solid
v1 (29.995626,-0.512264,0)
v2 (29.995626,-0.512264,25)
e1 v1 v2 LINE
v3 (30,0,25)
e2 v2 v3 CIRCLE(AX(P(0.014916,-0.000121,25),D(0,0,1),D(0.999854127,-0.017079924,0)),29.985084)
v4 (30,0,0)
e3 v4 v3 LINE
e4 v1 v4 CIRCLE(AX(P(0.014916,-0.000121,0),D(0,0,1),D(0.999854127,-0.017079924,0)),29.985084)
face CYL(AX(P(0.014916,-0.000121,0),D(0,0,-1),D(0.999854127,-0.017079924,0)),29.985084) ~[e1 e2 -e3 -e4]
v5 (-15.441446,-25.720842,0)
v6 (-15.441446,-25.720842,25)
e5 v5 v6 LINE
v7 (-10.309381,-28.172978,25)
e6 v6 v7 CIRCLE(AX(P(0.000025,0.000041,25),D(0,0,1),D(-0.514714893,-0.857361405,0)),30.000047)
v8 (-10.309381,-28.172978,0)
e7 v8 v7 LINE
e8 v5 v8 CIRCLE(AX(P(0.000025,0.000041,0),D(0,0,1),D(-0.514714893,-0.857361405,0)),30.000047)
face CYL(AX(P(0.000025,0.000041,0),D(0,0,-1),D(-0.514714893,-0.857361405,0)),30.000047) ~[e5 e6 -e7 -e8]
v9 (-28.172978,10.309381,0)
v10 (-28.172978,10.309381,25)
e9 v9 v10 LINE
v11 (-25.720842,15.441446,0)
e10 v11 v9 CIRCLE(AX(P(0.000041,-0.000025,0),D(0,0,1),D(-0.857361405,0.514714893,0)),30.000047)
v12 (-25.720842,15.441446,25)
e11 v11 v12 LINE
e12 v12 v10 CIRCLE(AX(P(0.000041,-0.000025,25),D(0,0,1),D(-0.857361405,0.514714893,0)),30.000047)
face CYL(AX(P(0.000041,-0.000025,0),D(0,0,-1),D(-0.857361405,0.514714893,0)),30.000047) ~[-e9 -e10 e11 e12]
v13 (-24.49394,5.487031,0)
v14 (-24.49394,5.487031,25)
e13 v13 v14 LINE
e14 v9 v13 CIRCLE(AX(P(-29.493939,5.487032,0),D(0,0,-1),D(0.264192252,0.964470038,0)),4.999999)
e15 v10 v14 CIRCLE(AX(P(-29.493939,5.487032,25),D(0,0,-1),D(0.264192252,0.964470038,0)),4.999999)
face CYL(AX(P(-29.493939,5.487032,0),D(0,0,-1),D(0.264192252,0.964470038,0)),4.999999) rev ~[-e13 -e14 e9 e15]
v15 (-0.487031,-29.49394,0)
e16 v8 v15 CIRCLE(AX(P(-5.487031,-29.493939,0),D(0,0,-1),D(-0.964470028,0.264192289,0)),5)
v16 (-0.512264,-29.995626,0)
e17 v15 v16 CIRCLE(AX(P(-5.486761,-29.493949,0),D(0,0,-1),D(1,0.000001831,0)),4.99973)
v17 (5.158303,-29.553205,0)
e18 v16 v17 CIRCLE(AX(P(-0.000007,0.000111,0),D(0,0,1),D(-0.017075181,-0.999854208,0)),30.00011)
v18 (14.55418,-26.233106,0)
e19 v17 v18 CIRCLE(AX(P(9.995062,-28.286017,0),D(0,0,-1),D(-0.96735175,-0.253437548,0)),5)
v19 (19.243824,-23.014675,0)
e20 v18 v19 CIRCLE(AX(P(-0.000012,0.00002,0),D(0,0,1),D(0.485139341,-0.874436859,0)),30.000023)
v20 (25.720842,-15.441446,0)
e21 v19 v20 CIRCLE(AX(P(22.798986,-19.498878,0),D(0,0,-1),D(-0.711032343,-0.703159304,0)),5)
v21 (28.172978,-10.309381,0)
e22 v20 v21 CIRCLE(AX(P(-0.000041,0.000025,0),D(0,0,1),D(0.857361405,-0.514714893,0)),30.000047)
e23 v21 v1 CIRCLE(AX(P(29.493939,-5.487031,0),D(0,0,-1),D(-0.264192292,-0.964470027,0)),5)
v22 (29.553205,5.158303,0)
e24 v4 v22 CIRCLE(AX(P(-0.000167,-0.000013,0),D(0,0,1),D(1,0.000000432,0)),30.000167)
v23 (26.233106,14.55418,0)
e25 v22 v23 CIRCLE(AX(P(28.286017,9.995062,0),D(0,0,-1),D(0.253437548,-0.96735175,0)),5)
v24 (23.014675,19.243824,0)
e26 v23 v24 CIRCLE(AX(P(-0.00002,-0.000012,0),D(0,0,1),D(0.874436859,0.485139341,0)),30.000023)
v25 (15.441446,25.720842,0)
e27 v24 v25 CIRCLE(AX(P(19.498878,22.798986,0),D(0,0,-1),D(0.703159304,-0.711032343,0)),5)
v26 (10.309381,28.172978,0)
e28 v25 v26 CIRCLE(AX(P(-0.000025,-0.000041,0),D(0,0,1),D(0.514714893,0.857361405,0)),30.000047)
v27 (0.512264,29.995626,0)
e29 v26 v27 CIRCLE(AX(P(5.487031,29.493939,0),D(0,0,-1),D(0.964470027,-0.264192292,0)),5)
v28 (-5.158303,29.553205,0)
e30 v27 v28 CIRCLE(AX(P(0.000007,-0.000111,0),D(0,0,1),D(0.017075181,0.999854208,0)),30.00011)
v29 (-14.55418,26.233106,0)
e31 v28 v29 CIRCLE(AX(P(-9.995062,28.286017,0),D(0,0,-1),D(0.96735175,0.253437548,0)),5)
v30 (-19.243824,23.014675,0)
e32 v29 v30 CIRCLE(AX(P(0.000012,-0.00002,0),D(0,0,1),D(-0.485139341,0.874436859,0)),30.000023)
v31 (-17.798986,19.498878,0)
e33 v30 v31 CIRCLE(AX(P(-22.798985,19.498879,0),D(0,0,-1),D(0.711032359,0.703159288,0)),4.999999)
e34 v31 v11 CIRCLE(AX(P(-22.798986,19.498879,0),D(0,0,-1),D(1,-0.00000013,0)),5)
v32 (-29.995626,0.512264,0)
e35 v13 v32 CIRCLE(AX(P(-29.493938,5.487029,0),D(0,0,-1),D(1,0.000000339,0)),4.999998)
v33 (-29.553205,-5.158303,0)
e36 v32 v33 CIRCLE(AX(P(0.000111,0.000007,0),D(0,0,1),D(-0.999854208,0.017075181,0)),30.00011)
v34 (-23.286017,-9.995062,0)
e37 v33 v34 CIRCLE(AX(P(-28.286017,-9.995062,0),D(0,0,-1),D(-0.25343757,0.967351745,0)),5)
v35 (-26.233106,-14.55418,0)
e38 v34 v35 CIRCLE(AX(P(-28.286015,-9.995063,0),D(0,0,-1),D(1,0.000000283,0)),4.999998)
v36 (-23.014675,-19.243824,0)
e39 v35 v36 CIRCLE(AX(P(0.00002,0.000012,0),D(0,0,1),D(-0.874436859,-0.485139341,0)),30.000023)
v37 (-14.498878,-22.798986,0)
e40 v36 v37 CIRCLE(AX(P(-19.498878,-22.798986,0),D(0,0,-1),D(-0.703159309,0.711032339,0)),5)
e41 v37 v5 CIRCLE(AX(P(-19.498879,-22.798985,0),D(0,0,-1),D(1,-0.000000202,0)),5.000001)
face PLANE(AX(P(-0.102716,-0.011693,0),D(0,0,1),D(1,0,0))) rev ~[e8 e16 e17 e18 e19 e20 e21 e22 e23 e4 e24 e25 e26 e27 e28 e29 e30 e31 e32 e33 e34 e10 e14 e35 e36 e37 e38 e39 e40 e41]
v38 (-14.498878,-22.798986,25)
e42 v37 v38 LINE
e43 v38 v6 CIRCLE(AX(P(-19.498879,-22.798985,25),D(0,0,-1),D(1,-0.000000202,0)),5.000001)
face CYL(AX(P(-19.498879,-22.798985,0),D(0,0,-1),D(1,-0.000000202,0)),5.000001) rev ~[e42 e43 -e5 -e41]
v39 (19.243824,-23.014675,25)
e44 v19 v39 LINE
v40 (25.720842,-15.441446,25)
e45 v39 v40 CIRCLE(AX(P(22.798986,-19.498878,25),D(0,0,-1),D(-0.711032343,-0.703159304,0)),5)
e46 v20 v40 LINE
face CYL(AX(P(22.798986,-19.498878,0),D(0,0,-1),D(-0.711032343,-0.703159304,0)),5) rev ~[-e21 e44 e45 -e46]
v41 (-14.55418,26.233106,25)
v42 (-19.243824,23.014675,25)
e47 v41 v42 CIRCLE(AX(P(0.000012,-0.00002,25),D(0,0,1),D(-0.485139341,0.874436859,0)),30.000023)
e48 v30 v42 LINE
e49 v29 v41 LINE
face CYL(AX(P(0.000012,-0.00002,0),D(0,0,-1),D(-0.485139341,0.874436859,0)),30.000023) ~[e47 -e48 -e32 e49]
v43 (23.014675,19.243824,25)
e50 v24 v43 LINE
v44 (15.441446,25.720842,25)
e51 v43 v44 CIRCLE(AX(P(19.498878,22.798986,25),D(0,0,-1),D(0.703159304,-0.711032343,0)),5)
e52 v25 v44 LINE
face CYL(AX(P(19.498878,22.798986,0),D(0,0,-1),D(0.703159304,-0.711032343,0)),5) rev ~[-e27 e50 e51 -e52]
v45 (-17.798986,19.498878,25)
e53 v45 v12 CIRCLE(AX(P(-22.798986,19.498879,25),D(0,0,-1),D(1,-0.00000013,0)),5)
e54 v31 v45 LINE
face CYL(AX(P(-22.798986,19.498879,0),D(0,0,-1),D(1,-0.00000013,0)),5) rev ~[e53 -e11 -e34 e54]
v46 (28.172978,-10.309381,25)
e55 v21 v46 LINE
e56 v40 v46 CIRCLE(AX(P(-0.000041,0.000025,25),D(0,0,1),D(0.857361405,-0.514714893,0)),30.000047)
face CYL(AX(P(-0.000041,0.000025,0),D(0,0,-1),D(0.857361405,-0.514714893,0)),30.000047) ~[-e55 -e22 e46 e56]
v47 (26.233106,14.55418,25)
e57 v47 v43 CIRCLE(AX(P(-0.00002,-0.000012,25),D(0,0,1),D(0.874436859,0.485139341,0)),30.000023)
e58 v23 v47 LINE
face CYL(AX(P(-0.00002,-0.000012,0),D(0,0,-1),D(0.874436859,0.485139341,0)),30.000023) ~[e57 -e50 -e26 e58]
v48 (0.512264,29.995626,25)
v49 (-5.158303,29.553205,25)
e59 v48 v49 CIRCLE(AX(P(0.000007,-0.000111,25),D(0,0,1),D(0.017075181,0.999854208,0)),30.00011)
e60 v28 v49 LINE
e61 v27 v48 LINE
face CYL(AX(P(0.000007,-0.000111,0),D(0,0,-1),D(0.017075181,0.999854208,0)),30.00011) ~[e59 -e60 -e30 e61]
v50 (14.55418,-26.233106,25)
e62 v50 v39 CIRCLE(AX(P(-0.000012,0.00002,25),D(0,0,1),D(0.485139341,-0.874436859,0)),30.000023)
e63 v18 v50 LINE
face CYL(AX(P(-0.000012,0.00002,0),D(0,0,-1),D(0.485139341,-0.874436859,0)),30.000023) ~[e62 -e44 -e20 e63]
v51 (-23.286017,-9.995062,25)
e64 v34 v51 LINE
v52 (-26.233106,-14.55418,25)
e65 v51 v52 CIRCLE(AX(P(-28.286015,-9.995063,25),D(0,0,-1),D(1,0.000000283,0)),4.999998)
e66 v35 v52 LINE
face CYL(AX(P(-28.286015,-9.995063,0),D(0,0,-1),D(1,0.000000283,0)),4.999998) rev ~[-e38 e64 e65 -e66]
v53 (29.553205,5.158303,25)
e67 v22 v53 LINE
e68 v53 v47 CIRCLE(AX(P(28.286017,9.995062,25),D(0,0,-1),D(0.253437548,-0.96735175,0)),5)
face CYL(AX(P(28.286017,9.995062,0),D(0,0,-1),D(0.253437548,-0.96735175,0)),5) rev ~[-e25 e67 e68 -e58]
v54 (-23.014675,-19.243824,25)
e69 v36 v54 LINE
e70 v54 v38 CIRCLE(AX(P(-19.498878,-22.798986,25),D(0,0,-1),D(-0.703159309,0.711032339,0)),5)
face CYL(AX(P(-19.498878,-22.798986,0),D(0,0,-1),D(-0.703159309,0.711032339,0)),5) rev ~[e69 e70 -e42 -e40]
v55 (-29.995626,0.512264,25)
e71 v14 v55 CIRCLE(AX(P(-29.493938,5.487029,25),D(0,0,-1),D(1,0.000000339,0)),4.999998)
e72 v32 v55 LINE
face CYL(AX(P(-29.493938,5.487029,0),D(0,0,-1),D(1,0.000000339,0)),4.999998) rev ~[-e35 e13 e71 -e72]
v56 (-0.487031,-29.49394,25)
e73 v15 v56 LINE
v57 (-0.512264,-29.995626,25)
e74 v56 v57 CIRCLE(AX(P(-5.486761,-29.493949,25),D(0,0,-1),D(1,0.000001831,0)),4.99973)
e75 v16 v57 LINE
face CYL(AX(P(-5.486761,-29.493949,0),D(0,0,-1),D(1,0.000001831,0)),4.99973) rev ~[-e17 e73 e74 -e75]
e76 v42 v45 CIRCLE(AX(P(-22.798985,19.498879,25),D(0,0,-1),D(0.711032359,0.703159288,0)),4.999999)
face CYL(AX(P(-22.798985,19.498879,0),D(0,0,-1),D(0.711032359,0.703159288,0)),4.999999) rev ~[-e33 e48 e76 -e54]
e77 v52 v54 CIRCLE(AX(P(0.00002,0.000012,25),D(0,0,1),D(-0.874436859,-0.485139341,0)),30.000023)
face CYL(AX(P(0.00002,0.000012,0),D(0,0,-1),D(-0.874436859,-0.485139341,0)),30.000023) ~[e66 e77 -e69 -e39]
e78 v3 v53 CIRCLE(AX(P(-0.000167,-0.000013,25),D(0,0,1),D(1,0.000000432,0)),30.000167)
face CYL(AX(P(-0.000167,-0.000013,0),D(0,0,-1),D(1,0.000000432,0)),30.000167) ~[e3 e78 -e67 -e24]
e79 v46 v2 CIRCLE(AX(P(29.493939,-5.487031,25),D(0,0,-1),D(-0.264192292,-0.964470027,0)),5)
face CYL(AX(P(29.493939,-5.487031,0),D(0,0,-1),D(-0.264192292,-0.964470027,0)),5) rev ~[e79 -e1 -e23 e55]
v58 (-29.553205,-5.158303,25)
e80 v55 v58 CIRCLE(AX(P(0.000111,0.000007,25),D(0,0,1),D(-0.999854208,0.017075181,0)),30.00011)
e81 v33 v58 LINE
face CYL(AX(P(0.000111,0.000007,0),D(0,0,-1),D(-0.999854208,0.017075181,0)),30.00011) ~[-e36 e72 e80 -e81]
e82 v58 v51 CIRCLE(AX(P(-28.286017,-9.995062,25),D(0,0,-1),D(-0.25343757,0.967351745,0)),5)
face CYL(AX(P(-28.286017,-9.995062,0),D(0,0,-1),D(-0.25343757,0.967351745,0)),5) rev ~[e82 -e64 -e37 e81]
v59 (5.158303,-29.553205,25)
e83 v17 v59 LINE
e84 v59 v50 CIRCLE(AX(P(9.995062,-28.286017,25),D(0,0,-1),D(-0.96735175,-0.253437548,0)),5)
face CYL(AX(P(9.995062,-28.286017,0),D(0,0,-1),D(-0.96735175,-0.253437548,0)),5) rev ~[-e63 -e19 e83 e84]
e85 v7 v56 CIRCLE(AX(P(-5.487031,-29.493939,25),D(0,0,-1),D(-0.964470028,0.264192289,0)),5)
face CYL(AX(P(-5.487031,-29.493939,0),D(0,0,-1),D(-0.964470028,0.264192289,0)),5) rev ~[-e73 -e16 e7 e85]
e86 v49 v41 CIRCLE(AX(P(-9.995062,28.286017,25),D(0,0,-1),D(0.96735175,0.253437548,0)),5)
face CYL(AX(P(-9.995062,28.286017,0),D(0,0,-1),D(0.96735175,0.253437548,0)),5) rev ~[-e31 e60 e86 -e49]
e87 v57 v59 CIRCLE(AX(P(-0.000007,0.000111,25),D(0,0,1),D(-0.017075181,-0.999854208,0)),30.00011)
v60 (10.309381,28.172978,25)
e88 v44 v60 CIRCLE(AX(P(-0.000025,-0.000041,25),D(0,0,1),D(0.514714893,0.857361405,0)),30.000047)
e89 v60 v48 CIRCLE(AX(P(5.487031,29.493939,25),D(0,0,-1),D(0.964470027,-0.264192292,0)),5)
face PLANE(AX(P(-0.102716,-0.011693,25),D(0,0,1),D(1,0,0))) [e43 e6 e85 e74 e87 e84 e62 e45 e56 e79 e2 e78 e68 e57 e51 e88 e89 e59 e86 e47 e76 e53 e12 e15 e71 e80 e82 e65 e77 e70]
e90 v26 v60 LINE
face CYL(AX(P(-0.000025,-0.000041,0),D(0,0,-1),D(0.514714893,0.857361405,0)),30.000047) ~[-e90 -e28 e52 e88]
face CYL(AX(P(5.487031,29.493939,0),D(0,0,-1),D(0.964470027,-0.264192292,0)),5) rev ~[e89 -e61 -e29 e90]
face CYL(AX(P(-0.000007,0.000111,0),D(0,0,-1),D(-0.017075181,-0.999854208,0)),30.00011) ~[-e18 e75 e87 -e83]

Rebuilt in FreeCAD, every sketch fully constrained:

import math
import FreeCAD as App
import Part
import Sketcher

V = App.Vector

doc = App.newDocument("Part")
params = doc.addObject("Spreadsheet::Sheet", "Params")
for row, (alias, value) in enumerate([
    ("sketch1_radius", "5 mm"),
    ("pad1_length", "25 mm"),
], start=1):
    params.set(f"A{row}", alias)
    params.set(f"B{row}", "=" + value)
    params.setAlias(f"B{row}", alias)

body = doc.addObject("PartDesign::Body", "Body")

# Sketch on XY plane
sketch1 = body.newObject("Sketcher::SketchObject", "Sketch")
sketch1.AttachmentSupport = (doc.getObject("XY_Plane"), [""])
sketch1.MapMode = "FlatFace"
sketch1.addGeometry(Part.ArcOfCircle(Part.Circle(V(0, 0, 0), V(0, 0, 1), 30), math.radians(-0.98), math.radians(0)), False)
sketch1.addGeometry(Part.ArcOfCircle(Part.Circle(V(0, 0, 0), V(0, 0, 1), 30), math.radians(0), math.radians(9.9)), False)
sketch1.addGeometry(Part.ArcOfCircle(Part.Circle(V(28.3, 10, 0), V(0, 0, 1), 5), math.radians(114), math.radians(285)), False)
sketch1.addGeometry(Part.ArcOfCircle(Part.Circle(V(0, 0, 0), V(0, 0, 1), 30), math.radians(29.02), math.radians(39.9)), False)
sketch1.addGeometry(Part.ArcOfCircle(Part.Circle(V(19.5, 22.8, 0), V(0, 0, 1), 5), math.radians(144), math.radians(315)), False)
sketch1.addGeometry(Part.ArcOfCircle(Part.Circle(V(0, 0, 0), V(0, 0, 1), 30), math.radians(59.02), math.radians(69.9)), False)
sketch1.addGeometry(Part.ArcOfCircle(Part.Circle(V(5.5, 29.5, 0), V(0, 0, 1), 5), math.radians(174), math.radians(345)), False)
sketch1.addGeometry(Part.ArcOfCircle(Part.Circle(V(0, 0, 0), V(0, 0, 1), 30), math.radians(89.02), math.radians(99.9)), False)
sketch1.addGeometry(Part.ArcOfCircle(Part.Circle(V(-10, 28.3, 0), V(0, 0, 1), 5), math.radians(-156), math.radians(15)), False)
sketch1.addGeometry(Part.ArcOfCircle(Part.Circle(V(0, 0, 0), V(0, 0, 1), 30), math.radians(119.02), math.radians(129.9)), False)
sketch1.addGeometry(Part.ArcOfCircle(Part.Circle(V(-22.8, 19.5, 0), V(0, 0, 1), 5), math.radians(0), math.radians(45)), False)
sketch1.addGeometry(Part.ArcOfCircle(Part.Circle(V(-22.8, 19.5, 0), V(0, 0, 1), 5), math.radians(-126), math.radians(0)), False)
sketch1.addGeometry(Part.ArcOfCircle(Part.Circle(V(0, 0, 0), V(0, 0, 1), 30), math.radians(149.02), math.radians(159.9)), False)
sketch1.addGeometry(Part.ArcOfCircle(Part.Circle(V(-29.5, 5.5, 0), V(0, 0, 1), 5), math.radians(0), math.radians(75)), False)
sketch1.addGeometry(Part.ArcOfCircle(Part.Circle(V(-29.5, 5.5, 0), V(0, 0, 1), 5), math.radians(-96), math.radians(0)), False)
sketch1.addGeometry(Part.ArcOfCircle(Part.Circle(V(0, 0, 0), V(0, 0, 1), 30), math.radians(179.02), math.radians(189.9)), False)
sketch1.addGeometry(Part.ArcOfCircle(Part.Circle(V(-28.3, -10, 0), V(0, 0, 1), 5), math.radians(0), math.radians(105)), False)
sketch1.addGeometry(Part.ArcOfCircle(Part.Circle(V(-28.3, -10, 0), V(0, 0, 1), 5), math.radians(-66), math.radians(0)), False)
sketch1.addGeometry(Part.ArcOfCircle(Part.Circle(V(0, 0, 0), V(0, 0, 1), 30), math.radians(-150.98), math.radians(-140.1)), False)
sketch1.addGeometry(Part.ArcOfCircle(Part.Circle(V(-19.5, -22.8, 0), V(0, 0, 1), 5), math.radians(0), math.radians(135)), False)
sketch1.addGeometry(Part.ArcOfCircle(Part.Circle(V(-19.5, -22.8, 0), V(0, 0, 1), 5), math.radians(-36), math.radians(0)), False)
sketch1.addGeometry(Part.ArcOfCircle(Part.Circle(V(0, 0, 0), V(0, 0, 1), 30), math.radians(-120.98), math.radians(-110.1)), False)
sketch1.addGeometry(Part.ArcOfCircle(Part.Circle(V(-5.5, -29.5, 0), V(0, 0, 1), 5), math.radians(0), math.radians(165)), False)
sketch1.addGeometry(Part.ArcOfCircle(Part.Circle(V(-5.5, -29.5, 0), V(0, 0, 1), 5), math.radians(-5.76), math.radians(0)), False)
sketch1.addGeometry(Part.ArcOfCircle(Part.Circle(V(0, 0, 0), V(0, 0, 1), 30), math.radians(-90.98), math.radians(-80.1)), False)
sketch1.addGeometry(Part.ArcOfCircle(Part.Circle(V(10, -28.3, 0), V(0, 0, 1), 5), math.radians(24), math.radians(195)), False)
sketch1.addGeometry(Part.ArcOfCircle(Part.Circle(V(0, 0, 0), V(0, 0, 1), 30), math.radians(-60.98), math.radians(-50.1)), False)
sketch1.addGeometry(Part.ArcOfCircle(Part.Circle(V(22.8, -19.5, 0), V(0, 0, 1), 5), math.radians(54), math.radians(225)), False)
sketch1.addGeometry(Part.ArcOfCircle(Part.Circle(V(0, 0, 0), V(0, 0, 1), 30), math.radians(-30.98), math.radians(-20.1)), False)
sketch1.addGeometry(Part.ArcOfCircle(Part.Circle(V(29.5, -5.5, 0), V(0, 0, 1), 5), math.radians(84), math.radians(255)), False)
sketch1.addConstraint(Sketcher.Constraint("Coincident", 0, 2, 1, 1))
sketch1.addConstraint(Sketcher.Constraint("Coincident", 1, 2, 2, 2))
sketch1.addConstraint(Sketcher.Constraint("Coincident", 2, 1, 3, 1))
sketch1.addConstraint(Sketcher.Constraint("Coincident", 3, 2, 4, 2))
sketch1.addConstraint(Sketcher.Constraint("Coincident", 4, 1, 5, 1))
sketch1.addConstraint(Sketcher.Constraint("Coincident", 5, 2, 6, 2))
sketch1.addConstraint(Sketcher.Constraint("Coincident", 6, 1, 7, 1))
sketch1.addConstraint(Sketcher.Constraint("Coincident", 7, 2, 8, 2))
sketch1.addConstraint(Sketcher.Constraint("Coincident", 8, 1, 9, 1))
sketch1.addConstraint(Sketcher.Constraint("Coincident", 9, 2, 10, 2))
sketch1.addConstraint(Sketcher.Constraint("Tangent", 10, 1, 11, 2))
sketch1.addConstraint(Sketcher.Constraint("Coincident", 11, 1, 12, 1))
sketch1.addConstraint(Sketcher.Constraint("Coincident", 12, 2, 13, 2))
sketch1.addConstraint(Sketcher.Constraint("Tangent", 13, 1, 14, 2))
sketch1.addConstraint(Sketcher.Constraint("Coincident", 14, 1, 15, 1))
sketch1.addConstraint(Sketcher.Constraint("Coincident", 15, 2, 16, 2))
sketch1.addConstraint(Sketcher.Constraint("Tangent", 16, 1, 17, 2))
sketch1.addConstraint(Sketcher.Constraint("Coincident", 17, 1, 18, 1))
sketch1.addConstraint(Sketcher.Constraint("Coincident", 18, 2, 19, 2))
sketch1.addConstraint(Sketcher.Constraint("Tangent", 19, 1, 20, 2))
sketch1.addConstraint(Sketcher.Constraint("Coincident", 20, 1, 21, 1))
sketch1.addConstraint(Sketcher.Constraint("Coincident", 21, 2, 22, 2))
sketch1.addConstraint(Sketcher.Constraint("Tangent", 22, 1, 23, 2))
sketch1.addConstraint(Sketcher.Constraint("Coincident", 23, 1, 24, 1))
sketch1.addConstraint(Sketcher.Constraint("Coincident", 24, 2, 25, 2))
sketch1.addConstraint(Sketcher.Constraint("Coincident", 25, 1, 26, 1))
sketch1.addConstraint(Sketcher.Constraint("Coincident", 26, 2, 27, 2))
sketch1.addConstraint(Sketcher.Constraint("Coincident", 27, 1, 28, 1))
sketch1.addConstraint(Sketcher.Constraint("Coincident", 28, 2, 29, 2))
sketch1.addConstraint(Sketcher.Constraint("Coincident", 29, 1, 0, 1))
sketch1.addConstraint(Sketcher.Constraint("Equal", 2, 4))
sketch1.addConstraint(Sketcher.Constraint("Equal", 4, 6))
sketch1.addConstraint(Sketcher.Constraint("Equal", 6, 8))
sketch1.addConstraint(Sketcher.Constraint("Equal", 3, 9))
sketch1.addConstraint(Sketcher.Constraint("Equal", 8, 10))
sketch1.addConstraint(Sketcher.Constraint("Equal", 10, 11))
sketch1.addConstraint(Sketcher.Constraint("Equal", 5, 12))
sketch1.addConstraint(Sketcher.Constraint("Equal", 11, 13))
sketch1.addConstraint(Sketcher.Constraint("Equal", 13, 14))
sketch1.addConstraint(Sketcher.Constraint("Equal", 7, 15))
sketch1.addConstraint(Sketcher.Constraint("Equal", 13, 16))
sketch1.addConstraint(Sketcher.Constraint("Equal", 14, 17))
sketch1.addConstraint(Sketcher.Constraint("Equal", 9, 18))
sketch1.addConstraint(Sketcher.Constraint("Equal", 16, 19))
sketch1.addConstraint(Sketcher.Constraint("Equal", 19, 20))
sketch1.addConstraint(Sketcher.Constraint("Equal", 12, 21))
sketch1.addConstraint(Sketcher.Constraint("Equal", 20, 22))
sketch1.addConstraint(Sketcher.Constraint("Equal", 15, 24))
sketch1.addConstraint(Sketcher.Constraint("Equal", 22, 25))
sketch1.addConstraint(Sketcher.Constraint("Equal", 18, 26))
sketch1.addConstraint(Sketcher.Constraint("Equal", 25, 27))
sketch1.addConstraint(Sketcher.Constraint("Equal", 21, 28))
sketch1.addConstraint(Sketcher.Constraint("Equal", 27, 29))
sketch1.addConstraint(Sketcher.Constraint("Symmetric", 2, 3, 16, 3, -1, 1))
sketch1.addConstraint(Sketcher.Constraint("Symmetric", 3, 3, 18, 3, -1, 1))
sketch1.addConstraint(Sketcher.Constraint("Symmetric", 4, 3, 19, 3, -1, 1))
sketch1.addConstraint(Sketcher.Constraint("Symmetric", 5, 3, 21, 3, -1, 1))
sketch1.addConstraint(Sketcher.Constraint("Symmetric", 6, 3, 22, 3, -1, 1))
sketch1.addConstraint(Sketcher.Constraint("Symmetric", 7, 3, 24, 3, -1, 1))
sketch1.addConstraint(Sketcher.Constraint("Symmetric", 8, 3, 25, 3, -1, 1))
sketch1.addConstraint(Sketcher.Constraint("Symmetric", 9, 3, 26, 3, -1, 1))
sketch1.addConstraint(Sketcher.Constraint("Symmetric", 10, 3, 27, 3, -1, 1))
sketch1.addConstraint(Sketcher.Constraint("Symmetric", 12, 3, 28, 3, -1, 1))
sketch1.addConstraint(Sketcher.Constraint("Symmetric", 13, 3, 29, 3, -1, 1))
sketch1.addConstraint(Sketcher.Constraint("PointOnObject", 0, 2, -1))
sketch1.addConstraint(Sketcher.Constraint("Horizontal", 1, 3, 3, 3))
sketch1.addConstraint(Sketcher.Constraint("Horizontal", 11, 3, 10, 1))
sketch1.addConstraint(Sketcher.Constraint("Horizontal", 14, 3, 13, 1))
sketch1.addConstraint(Sketcher.Constraint("Horizontal", 17, 3, 16, 1))
sketch1.addConstraint(Sketcher.Constraint("Horizontal", 20, 3, 19, 1))
sketch1.addConstraint(Sketcher.Constraint("Radius", 2, 5.0))
sketch1.addConstraint(Sketcher.Constraint("DistanceX", -1, 1, 0, 2, 30.0))
sketch1.addConstraint(Sketcher.Constraint("Radius", 7, 30.00011))
sketch1.addConstraint(Sketcher.Constraint("Radius", 23, 4.99973))
sketch1.addConstraint(Sketcher.Constraint("Radius", 0, 29.985084))
sketch1.addConstraint(Sketcher.Constraint("Radius", 1, 30.000167))
sketch1.addConstraint(Sketcher.Constraint("Radius", 3, 30.000023))
sketch1.addConstraint(Sketcher.Constraint("Radius", 5, 30.000047))
sketch1.addConstraint(Sketcher.Constraint("DistanceY", 1, 3, 4, 3, 22.798999))
sketch1.addConstraint(Sketcher.Constraint("DistanceX", 0, 3, 2, 3, 28.271102))
sketch1.addConstraint(Sketcher.Constraint("DistanceX", 3, 3, 4, 3, 19.498899))
sketch1.addConstraint(Sketcher.Constraint("DistanceX", 1, 3, 6, 3, 5.487198))
sketch1.addConstraint(Sketcher.Constraint("DistanceY", 0, 3, 9, 3, 0.000101))
sketch1.addConstraint(Sketcher.Constraint("DistanceY", 22, 3, 5, 3, 29.493899))
sketch1.addConstraint(Sketcher.Constraint("DistanceX", 12, 3, 29, 3, 29.493899))
sketch1.addConstraint(Sketcher.Constraint("DistanceX", 2, 1, 1, 2, 3.320099))
sketch1.addConstraint(Sketcher.Constraint("DistanceY", 8, 1, 7, 2, 3.320099))
sketch1.addConstraint(Sketcher.Constraint("DistanceY", 12, 2, 10, 3, 9.189498))
sketch1.addConstraint(Sketcher.Constraint("DistanceX", 11, 1, 13, 1, 1.226902))
sketch1.addConstraint(Sketcher.Constraint("DistanceX", 15, 2, 17, 1, 3.320099))
sketch1.addConstraint(Sketcher.Constraint("DistanceY", 22, 1, 20, 1, 3.773098))
sketch1.addConstraint(Sketcher.Constraint("DistanceY", 0, 3, -1, 1, 0.000121))
sketch1.addConstraint(Sketcher.Constraint("DistanceY", -1, 1, 2, 3, 9.995062))
sketch1.addConstraint(Sketcher.Constraint("DistanceX", -1, 1, 4, 3, 19.498878))
sketch1.addConstraint(Sketcher.Constraint("DistanceY", -1, 1, 6, 3, 29.493939))
sketch1.addConstraint(Sketcher.Constraint("DistanceY", 7, 3, -1, 1, 0.000111))
sketch1.addConstraint(Sketcher.Constraint("DistanceX", 8, 3, -1, 1, 9.995062))
sketch1.addConstraint(Sketcher.Constraint("DistanceY", -1, 1, 10, 3, 19.498879))
sketch1.addConstraint(Sketcher.Constraint("DistanceX", 13, 3, -1, 1, 29.493939))
sketch1.addConstraint(Sketcher.Constraint("DistanceY", -1, 1, 13, 3, 5.487032))
sketch1.addConstraint(Sketcher.Constraint("DistanceX", -1, 1, 15, 3, 0.000111))
sketch1.addConstraint(Sketcher.Constraint("DistanceX", -1, 1, 5, 2, 10.309381))
sketch1.addConstraint(Sketcher.Constraint("DistanceX", 8, 1, -1, 1, 14.55418))
sketch1.addConstraint(Sketcher.Constraint("DistanceX", 7, 3, 0, 3, 0.014909))
sketch1.setExpression("Constraints[70]", "Params.sketch1_radius")
pad1 = body.newObject("PartDesign::Pad", "Pad")
pad1.Profile = sketch1
pad1.setExpression("Length", "Params.pad1_length")

doc.recompute()
